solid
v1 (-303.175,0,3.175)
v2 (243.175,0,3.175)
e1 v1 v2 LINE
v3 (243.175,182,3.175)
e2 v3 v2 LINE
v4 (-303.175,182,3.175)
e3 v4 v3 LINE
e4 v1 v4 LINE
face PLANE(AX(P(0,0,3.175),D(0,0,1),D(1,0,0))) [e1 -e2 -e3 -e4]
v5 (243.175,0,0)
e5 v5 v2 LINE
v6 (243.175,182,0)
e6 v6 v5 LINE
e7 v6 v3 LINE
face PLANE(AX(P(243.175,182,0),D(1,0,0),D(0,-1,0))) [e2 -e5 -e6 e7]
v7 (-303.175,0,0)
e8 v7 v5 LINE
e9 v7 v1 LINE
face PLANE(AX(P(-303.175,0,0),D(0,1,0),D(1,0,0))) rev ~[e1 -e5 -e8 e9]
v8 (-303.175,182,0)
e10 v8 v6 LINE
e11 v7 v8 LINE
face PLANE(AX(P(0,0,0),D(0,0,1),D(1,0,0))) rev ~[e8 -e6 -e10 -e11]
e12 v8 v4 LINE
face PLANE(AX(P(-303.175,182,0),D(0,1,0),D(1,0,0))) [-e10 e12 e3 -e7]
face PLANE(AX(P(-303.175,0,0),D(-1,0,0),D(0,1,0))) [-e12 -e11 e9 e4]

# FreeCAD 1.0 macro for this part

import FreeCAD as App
import Part
import Sketcher

doc = App.newDocument("Part")
body = doc.addObject("PartDesign::Body", "Body")

sketch1 = body.newObject("Sketcher::SketchObject", "Sketch")
sketch1.AttachmentSupport = (doc.getObject("XY_Plane"), [""])
sketch1.MapMode = "FlatFace"
sketch1.addGeometry([
    Part.LineSegment(App.Vector(243, 182, 0), App.Vector(-303, 182, 0)),
    Part.LineSegment(App.Vector(-303, 182, 0), App.Vector(-303, 0, 0)),
    Part.LineSegment(App.Vector(-303, 0, 0), App.Vector(243, 0, 0)),
    Part.LineSegment(App.Vector(243, 0, 0), App.Vector(243, 182, 0)),
], False)
sketch1.addConstraint([
    Sketcher.Constraint("Coincident", 0, 2, 1, 1),
    Sketcher.Constraint("Coincident", 1, 2, 2, 1),
    Sketcher.Constraint("Coincident", 2, 2, 3, 1),
    Sketcher.Constraint("Coincident", 3, 2, 0, 1),
    Sketcher.Constraint("Horizontal", 0),
    Sketcher.Constraint("Vertical", 1),
    Sketcher.Constraint("Horizontal", 2),
    Sketcher.Constraint("Vertical", 3),
    Sketcher.Constraint("PointOnObject", 1, 2, -1),
    Sketcher.Constraint("DistanceY", 1, 2, 1, 1, 182.0),
    Sketcher.Constraint("DistanceX", 0, 2, -1, 1, 303.175),
    Sketcher.Constraint("DistanceX", -1, 1, 2, 2, 243.175),
])
pad1 = body.newObject("PartDesign::Pad", "Pad")
pad1.Profile = sketch1
pad1.Length = 3.175

doc.recompute()
